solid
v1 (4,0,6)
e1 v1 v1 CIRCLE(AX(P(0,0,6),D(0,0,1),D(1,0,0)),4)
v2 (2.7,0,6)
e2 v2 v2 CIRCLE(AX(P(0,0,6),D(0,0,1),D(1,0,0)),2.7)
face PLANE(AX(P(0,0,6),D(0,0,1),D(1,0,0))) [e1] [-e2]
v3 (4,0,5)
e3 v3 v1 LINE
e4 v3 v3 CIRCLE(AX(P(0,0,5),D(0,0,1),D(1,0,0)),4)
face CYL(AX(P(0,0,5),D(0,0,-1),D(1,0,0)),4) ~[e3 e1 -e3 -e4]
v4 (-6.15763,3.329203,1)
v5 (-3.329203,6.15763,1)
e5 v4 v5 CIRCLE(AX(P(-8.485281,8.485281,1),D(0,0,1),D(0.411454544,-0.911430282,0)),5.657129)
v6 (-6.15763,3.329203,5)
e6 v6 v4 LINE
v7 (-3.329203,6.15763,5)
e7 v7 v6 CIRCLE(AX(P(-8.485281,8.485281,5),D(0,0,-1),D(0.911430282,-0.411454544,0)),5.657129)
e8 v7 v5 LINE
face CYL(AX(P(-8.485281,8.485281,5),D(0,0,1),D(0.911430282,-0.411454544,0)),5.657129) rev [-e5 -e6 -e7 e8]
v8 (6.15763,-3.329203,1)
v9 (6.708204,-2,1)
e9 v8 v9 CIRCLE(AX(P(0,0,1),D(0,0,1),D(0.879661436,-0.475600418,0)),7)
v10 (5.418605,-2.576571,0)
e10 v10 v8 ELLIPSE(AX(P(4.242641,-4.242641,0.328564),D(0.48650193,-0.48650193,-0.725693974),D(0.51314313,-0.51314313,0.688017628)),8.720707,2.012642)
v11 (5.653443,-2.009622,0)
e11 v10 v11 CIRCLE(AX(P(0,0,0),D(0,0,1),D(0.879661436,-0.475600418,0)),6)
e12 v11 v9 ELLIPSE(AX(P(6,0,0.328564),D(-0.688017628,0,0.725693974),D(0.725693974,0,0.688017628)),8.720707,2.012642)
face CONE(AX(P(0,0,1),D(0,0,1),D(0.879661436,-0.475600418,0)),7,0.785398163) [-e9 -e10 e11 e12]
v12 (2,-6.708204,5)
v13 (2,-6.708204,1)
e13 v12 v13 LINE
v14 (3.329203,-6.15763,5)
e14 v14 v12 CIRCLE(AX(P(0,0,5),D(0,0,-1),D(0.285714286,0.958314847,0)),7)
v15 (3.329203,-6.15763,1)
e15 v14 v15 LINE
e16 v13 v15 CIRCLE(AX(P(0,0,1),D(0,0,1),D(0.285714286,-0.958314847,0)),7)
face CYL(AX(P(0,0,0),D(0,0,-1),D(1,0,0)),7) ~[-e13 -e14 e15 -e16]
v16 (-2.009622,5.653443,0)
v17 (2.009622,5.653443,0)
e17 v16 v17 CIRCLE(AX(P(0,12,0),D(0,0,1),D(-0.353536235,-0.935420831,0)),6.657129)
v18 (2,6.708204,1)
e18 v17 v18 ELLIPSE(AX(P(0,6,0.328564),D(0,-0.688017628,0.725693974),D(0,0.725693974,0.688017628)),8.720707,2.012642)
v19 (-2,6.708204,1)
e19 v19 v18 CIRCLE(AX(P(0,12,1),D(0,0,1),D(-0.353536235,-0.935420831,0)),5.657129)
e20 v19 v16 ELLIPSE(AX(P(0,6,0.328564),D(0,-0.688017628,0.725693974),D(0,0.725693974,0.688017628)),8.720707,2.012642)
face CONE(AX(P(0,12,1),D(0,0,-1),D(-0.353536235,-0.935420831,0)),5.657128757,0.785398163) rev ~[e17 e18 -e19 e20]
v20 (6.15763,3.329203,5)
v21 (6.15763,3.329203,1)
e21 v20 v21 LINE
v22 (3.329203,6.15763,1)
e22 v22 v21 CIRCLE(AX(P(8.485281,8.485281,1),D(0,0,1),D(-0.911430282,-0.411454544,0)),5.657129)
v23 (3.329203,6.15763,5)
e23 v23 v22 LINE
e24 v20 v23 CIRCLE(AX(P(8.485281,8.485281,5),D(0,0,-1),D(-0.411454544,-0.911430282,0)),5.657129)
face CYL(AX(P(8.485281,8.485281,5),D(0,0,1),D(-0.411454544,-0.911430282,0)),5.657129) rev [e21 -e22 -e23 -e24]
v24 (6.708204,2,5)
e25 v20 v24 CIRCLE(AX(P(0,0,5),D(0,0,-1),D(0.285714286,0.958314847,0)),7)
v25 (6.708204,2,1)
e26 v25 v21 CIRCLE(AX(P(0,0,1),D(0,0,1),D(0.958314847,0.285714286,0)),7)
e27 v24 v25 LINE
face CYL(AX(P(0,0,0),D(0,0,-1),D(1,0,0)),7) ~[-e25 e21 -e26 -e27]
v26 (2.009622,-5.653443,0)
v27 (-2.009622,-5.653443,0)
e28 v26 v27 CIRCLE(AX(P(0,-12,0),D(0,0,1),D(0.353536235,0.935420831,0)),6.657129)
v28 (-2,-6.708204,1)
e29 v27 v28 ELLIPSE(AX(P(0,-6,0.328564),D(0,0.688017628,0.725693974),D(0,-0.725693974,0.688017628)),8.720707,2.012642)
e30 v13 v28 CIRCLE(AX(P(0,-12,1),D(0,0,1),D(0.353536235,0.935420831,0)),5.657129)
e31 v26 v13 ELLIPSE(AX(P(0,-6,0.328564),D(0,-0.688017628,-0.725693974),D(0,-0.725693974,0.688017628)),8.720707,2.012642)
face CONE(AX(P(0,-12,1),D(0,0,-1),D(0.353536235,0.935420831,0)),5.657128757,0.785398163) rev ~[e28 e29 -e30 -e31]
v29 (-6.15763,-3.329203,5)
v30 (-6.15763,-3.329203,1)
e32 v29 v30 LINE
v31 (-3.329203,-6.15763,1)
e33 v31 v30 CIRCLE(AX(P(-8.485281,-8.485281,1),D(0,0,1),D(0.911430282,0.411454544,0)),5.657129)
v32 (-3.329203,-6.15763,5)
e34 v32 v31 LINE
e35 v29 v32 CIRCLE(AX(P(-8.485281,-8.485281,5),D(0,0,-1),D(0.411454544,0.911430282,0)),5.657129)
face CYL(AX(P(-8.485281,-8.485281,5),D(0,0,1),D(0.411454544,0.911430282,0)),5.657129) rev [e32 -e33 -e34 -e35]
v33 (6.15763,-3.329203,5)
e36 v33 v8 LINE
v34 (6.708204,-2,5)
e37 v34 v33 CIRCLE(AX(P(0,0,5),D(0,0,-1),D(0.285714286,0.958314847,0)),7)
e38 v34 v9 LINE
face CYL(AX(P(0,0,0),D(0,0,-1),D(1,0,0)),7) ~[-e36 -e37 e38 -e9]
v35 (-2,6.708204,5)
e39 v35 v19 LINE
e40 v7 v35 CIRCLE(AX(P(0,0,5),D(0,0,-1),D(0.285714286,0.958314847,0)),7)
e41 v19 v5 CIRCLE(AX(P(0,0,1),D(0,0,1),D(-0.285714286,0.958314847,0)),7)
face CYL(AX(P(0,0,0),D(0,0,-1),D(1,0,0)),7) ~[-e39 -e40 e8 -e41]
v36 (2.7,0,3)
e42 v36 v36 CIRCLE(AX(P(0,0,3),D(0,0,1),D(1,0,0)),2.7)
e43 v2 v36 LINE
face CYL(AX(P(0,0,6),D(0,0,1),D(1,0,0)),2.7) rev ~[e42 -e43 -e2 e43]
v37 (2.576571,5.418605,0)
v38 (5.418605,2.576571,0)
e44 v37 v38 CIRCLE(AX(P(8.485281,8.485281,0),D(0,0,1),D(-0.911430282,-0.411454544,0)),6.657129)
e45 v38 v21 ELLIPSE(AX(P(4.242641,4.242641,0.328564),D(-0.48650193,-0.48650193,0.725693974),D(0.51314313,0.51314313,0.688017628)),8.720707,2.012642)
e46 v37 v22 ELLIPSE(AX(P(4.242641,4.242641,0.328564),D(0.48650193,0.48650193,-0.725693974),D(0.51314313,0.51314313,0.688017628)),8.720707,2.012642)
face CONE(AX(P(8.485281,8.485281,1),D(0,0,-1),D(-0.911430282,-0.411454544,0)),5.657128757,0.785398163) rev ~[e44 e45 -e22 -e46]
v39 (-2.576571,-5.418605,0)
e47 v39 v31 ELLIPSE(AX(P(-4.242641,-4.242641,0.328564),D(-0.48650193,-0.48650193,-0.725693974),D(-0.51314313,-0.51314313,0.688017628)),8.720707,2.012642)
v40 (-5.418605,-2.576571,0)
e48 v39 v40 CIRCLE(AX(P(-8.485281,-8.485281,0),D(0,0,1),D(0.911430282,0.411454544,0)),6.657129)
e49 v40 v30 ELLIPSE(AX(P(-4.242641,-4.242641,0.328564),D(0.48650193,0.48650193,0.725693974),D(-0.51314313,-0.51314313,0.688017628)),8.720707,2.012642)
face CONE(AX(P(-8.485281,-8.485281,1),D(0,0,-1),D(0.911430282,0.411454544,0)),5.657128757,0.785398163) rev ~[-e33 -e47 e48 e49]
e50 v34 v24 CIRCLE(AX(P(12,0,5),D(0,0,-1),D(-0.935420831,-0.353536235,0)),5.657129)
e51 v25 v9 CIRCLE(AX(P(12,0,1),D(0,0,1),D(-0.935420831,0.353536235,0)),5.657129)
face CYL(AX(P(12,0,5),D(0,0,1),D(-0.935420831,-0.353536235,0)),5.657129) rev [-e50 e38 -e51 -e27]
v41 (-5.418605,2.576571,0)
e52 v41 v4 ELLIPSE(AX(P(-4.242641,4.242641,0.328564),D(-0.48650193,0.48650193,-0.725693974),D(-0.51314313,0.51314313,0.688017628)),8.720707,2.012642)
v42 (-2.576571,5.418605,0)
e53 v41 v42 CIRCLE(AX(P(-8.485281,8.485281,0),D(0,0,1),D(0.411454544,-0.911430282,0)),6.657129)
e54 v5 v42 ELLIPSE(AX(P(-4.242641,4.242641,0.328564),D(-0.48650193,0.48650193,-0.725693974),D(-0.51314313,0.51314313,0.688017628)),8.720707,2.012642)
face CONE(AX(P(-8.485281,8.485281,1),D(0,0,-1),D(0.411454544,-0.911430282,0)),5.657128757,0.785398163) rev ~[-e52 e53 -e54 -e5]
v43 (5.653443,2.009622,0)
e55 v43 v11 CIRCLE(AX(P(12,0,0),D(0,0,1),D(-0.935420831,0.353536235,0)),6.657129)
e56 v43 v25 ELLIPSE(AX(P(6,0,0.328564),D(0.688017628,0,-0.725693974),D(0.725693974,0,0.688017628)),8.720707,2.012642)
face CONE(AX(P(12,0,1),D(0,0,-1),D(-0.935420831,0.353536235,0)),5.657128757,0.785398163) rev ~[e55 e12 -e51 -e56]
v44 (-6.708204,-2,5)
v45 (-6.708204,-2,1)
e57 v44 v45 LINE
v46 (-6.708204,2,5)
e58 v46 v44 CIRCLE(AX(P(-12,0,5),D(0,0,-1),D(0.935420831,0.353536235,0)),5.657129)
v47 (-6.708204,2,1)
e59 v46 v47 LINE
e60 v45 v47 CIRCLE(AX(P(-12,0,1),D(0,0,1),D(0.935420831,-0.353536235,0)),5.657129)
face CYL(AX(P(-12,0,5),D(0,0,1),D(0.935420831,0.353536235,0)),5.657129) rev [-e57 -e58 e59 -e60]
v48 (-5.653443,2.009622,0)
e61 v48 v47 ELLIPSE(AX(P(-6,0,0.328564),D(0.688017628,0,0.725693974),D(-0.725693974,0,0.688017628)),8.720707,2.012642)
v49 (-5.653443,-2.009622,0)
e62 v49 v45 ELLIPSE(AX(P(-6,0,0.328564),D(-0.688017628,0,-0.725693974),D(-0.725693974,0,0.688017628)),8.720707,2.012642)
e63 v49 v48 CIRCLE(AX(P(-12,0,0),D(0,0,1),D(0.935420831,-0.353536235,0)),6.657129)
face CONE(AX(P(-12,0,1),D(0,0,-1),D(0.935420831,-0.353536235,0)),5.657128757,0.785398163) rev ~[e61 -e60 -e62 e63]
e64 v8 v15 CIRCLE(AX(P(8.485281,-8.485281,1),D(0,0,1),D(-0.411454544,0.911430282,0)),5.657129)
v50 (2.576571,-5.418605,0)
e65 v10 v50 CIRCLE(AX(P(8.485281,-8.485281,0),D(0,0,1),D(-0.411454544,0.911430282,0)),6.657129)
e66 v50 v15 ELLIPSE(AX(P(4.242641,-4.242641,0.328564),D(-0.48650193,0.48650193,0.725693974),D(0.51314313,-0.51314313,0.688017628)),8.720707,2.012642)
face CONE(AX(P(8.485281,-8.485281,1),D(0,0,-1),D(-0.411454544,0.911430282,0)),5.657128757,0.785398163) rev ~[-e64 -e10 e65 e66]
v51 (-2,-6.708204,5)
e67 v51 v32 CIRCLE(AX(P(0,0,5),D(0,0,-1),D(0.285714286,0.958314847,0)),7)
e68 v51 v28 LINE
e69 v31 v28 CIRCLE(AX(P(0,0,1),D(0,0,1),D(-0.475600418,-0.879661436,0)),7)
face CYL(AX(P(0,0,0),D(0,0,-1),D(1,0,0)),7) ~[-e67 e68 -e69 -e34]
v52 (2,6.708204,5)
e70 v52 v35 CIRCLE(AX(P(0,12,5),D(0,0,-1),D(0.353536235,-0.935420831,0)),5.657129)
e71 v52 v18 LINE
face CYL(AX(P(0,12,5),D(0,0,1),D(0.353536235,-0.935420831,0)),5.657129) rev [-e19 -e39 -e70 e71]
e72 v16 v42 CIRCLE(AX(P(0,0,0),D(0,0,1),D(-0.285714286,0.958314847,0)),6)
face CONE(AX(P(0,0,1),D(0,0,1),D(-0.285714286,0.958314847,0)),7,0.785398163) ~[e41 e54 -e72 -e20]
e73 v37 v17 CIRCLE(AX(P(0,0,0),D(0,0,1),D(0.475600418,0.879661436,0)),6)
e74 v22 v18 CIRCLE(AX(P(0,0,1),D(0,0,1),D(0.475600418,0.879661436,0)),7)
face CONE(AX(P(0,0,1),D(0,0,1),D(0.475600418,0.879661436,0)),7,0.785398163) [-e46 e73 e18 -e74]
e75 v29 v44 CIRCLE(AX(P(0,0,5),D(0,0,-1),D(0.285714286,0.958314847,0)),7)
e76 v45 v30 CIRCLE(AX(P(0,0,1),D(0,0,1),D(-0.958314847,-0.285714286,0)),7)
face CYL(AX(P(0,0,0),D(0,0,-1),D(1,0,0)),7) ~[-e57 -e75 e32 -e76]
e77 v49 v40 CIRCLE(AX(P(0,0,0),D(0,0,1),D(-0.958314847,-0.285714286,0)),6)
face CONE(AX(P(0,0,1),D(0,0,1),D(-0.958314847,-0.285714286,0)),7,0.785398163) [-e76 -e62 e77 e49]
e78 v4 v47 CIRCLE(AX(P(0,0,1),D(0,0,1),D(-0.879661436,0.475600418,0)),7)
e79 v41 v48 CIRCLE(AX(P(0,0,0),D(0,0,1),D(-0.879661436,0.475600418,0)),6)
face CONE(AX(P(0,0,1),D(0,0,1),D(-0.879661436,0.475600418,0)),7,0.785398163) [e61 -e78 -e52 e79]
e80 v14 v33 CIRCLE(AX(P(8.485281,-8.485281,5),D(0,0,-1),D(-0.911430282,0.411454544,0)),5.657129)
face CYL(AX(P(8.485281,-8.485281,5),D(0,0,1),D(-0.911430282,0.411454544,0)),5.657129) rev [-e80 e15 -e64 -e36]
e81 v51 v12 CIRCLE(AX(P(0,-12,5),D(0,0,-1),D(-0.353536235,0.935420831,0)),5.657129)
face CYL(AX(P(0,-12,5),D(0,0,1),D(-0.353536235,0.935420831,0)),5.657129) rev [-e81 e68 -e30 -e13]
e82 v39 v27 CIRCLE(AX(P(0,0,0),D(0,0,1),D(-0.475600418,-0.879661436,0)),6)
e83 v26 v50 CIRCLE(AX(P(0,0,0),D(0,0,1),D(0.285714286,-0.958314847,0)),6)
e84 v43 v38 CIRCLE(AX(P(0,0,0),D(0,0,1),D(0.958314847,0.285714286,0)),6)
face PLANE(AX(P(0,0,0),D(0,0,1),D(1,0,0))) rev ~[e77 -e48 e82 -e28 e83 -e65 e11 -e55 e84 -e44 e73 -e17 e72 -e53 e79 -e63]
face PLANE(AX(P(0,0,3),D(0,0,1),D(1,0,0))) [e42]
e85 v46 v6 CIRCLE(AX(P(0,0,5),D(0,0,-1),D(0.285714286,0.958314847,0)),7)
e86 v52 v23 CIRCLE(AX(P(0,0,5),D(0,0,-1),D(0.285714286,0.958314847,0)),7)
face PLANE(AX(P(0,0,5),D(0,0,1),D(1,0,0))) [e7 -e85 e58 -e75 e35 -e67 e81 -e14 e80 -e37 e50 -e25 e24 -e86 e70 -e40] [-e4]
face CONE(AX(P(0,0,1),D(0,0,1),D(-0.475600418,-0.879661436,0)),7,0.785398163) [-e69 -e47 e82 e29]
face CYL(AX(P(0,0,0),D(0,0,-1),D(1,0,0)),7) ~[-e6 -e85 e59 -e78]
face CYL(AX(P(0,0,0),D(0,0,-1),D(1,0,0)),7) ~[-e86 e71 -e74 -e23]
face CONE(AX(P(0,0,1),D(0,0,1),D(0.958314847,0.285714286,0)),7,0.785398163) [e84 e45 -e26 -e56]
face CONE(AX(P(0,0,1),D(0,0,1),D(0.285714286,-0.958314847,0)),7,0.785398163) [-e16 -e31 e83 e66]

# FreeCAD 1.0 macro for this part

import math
import FreeCAD as App
import Part
import Sketcher
from FreeCAD import Vector


def edges_at(feature, points):
    """Names of the edges that pass closest to the given points."""
    edges = feature.Shape.Edges
    near = lambda p: min(range(len(edges)), key=lambda i: edges[i].distToShape(Part.Vertex(*p))[0])
    return sorted({f"Edge{near(p) + 1}" for p in points})

doc = App.newDocument("Part")
body = doc.addObject("PartDesign::Body", "Body")

# Sketch on XY plane
sketch1 = body.newObject("Sketcher::SketchObject", "Sketch")
sketch1.AttachmentSupport = (doc.getObject("XY_Plane"), [""])
sketch1.MapMode = "FlatFace"
sketch1.addGeometry(Part.Circle(Vector(0, 0, 0), Vector(0, 0, 1), 7), False)
sketch1.addConstraint(Sketcher.Constraint("Coincident", 0, 3, -1, 1))
sketch1.addConstraint(Sketcher.Constraint("Diameter", 0, 14.0))
pad1 = body.newObject("PartDesign::Pad", "Pad")
pad1.Profile = sketch1
pad1.Length = 5

# Sketch on XY plane
sketch2 = body.newObject("Sketcher::SketchObject", "Sketch001")
sketch2.AttachmentSupport = (doc.getObject("XY_Plane"), [""])
sketch2.MapMode = "FlatFace"
sketch2.AttachmentOffset = App.Placement(Vector(0, 0, 5), App.Rotation())
sketch2.addGeometry(Part.ArcOfCircle(Part.Circle(Vector(0, 12, 0), Vector(0, 0, 1), 5.7), math.radians(-111), math.radians(-69)), False)
sketch2.addGeometry(Part.ArcOfCircle(Part.Circle(Vector(0, 0, 0), Vector(0, 0, 1), 7), math.radians(73), math.radians(107)), False)
sketch2.addConstraint(Sketcher.Constraint("Coincident", 0, 1, 1, 2))
sketch2.addConstraint(Sketcher.Constraint("Coincident", 1, 1, 0, 2))
sketch2.addConstraint(Sketcher.Constraint("Coincident", 1, 3, -1, 1))
sketch2.addConstraint(Sketcher.Constraint("PointOnObject", 0, 3, -2))
sketch2.addConstraint(Sketcher.Constraint("Radius", 1, 7.0))
sketch2.addConstraint(Sketcher.Constraint("DistanceY", -1, 1, 0, 3, 12.0))
sketch2.addConstraint(Sketcher.Constraint("DistanceX", 0, 1, -1, 1, 2.0))
pocket1 = body.newObject("PartDesign::Pocket", "Pocket")
pocket1.Profile = sketch2
pocket1.Type = "ThroughAll"
doc.recompute()

polarpattern = body.newObject("PartDesign::PolarPattern", "PolarPattern")
polarpattern.Originals = [pocket1]
polarpattern.Axis = (doc.getObject("Z_Axis"), [""])
polarpattern.Angle = 360
polarpattern.Occurrences = 8
body.Tip = polarpattern
doc.recompute()

chamfer = body.newObject("PartDesign::Chamfer", "Chamfer")
chamfer.Base = (polarpattern, edges_at(polarpattern, [
    (-6.467, 2.679, 0),
    (-6.467, -2.679, 0),
    (-2.679, -6.467, 0),
    (2.679, -6.467, 0),
    (6.467, -2.679, 0),
    (6.467, 2.679, 0),
    (2.679, 6.467, 0),
    (-6.343, 0, 0),
    (-4.485, -4.485, 0),
    (0, -6.343, 0),
    (4.485, -4.485, 0),
    (6.343, 0, 0),
    (4.485, 4.485, 0),
    (-2.679, 6.467, 0),
    (-4.485, 4.485, 0),
    (0, 6.343, 0),
]))
chamfer.Size = 1

# Sketch on XY plane
sketch3 = body.newObject("Sketcher::SketchObject", "Sketch002")
sketch3.AttachmentSupport = (doc.getObject("XY_Plane"), [""])
sketch3.MapMode = "FlatFace"
sketch3.AttachmentOffset = App.Placement(Vector(0, 0, 5), App.Rotation())
sketch3.addGeometry(Part.Circle(Vector(0, 0, 0), Vector(0, 0, 1), 4), False)
sketch3.addConstraint(Sketcher.Constraint("Coincident", 0, 3, -1, 1))
sketch3.addConstraint(Sketcher.Constraint("Diameter", 0, 8.0))
pad2 = body.newObject("PartDesign::Pad", "Pad001")
pad2.Profile = sketch3
pad2.Length = 1

# Sketch on XY plane
sketch4 = body.newObject("Sketcher::SketchObject", "Sketch003")
sketch4.AttachmentSupport = (doc.getObject("XY_Plane"), [""])
sketch4.MapMode = "FlatFace"
sketch4.AttachmentOffset = App.Placement(Vector(0, 0, 6), App.Rotation())
sketch4.addGeometry(Part.Circle(Vector(0, 0, 0), Vector(0, 0, 1), 2.7), False)
sketch4.addConstraint(Sketcher.Constraint("Coincident", 0, 3, -1, 1))
sketch4.addConstraint(Sketcher.Constraint("Diameter", 0, 5.4))
pocket2 = body.newObject("PartDesign::Pocket", "Pocket001")
pocket2.Profile = sketch4
pocket2.Length = 3

doc.recompute()
